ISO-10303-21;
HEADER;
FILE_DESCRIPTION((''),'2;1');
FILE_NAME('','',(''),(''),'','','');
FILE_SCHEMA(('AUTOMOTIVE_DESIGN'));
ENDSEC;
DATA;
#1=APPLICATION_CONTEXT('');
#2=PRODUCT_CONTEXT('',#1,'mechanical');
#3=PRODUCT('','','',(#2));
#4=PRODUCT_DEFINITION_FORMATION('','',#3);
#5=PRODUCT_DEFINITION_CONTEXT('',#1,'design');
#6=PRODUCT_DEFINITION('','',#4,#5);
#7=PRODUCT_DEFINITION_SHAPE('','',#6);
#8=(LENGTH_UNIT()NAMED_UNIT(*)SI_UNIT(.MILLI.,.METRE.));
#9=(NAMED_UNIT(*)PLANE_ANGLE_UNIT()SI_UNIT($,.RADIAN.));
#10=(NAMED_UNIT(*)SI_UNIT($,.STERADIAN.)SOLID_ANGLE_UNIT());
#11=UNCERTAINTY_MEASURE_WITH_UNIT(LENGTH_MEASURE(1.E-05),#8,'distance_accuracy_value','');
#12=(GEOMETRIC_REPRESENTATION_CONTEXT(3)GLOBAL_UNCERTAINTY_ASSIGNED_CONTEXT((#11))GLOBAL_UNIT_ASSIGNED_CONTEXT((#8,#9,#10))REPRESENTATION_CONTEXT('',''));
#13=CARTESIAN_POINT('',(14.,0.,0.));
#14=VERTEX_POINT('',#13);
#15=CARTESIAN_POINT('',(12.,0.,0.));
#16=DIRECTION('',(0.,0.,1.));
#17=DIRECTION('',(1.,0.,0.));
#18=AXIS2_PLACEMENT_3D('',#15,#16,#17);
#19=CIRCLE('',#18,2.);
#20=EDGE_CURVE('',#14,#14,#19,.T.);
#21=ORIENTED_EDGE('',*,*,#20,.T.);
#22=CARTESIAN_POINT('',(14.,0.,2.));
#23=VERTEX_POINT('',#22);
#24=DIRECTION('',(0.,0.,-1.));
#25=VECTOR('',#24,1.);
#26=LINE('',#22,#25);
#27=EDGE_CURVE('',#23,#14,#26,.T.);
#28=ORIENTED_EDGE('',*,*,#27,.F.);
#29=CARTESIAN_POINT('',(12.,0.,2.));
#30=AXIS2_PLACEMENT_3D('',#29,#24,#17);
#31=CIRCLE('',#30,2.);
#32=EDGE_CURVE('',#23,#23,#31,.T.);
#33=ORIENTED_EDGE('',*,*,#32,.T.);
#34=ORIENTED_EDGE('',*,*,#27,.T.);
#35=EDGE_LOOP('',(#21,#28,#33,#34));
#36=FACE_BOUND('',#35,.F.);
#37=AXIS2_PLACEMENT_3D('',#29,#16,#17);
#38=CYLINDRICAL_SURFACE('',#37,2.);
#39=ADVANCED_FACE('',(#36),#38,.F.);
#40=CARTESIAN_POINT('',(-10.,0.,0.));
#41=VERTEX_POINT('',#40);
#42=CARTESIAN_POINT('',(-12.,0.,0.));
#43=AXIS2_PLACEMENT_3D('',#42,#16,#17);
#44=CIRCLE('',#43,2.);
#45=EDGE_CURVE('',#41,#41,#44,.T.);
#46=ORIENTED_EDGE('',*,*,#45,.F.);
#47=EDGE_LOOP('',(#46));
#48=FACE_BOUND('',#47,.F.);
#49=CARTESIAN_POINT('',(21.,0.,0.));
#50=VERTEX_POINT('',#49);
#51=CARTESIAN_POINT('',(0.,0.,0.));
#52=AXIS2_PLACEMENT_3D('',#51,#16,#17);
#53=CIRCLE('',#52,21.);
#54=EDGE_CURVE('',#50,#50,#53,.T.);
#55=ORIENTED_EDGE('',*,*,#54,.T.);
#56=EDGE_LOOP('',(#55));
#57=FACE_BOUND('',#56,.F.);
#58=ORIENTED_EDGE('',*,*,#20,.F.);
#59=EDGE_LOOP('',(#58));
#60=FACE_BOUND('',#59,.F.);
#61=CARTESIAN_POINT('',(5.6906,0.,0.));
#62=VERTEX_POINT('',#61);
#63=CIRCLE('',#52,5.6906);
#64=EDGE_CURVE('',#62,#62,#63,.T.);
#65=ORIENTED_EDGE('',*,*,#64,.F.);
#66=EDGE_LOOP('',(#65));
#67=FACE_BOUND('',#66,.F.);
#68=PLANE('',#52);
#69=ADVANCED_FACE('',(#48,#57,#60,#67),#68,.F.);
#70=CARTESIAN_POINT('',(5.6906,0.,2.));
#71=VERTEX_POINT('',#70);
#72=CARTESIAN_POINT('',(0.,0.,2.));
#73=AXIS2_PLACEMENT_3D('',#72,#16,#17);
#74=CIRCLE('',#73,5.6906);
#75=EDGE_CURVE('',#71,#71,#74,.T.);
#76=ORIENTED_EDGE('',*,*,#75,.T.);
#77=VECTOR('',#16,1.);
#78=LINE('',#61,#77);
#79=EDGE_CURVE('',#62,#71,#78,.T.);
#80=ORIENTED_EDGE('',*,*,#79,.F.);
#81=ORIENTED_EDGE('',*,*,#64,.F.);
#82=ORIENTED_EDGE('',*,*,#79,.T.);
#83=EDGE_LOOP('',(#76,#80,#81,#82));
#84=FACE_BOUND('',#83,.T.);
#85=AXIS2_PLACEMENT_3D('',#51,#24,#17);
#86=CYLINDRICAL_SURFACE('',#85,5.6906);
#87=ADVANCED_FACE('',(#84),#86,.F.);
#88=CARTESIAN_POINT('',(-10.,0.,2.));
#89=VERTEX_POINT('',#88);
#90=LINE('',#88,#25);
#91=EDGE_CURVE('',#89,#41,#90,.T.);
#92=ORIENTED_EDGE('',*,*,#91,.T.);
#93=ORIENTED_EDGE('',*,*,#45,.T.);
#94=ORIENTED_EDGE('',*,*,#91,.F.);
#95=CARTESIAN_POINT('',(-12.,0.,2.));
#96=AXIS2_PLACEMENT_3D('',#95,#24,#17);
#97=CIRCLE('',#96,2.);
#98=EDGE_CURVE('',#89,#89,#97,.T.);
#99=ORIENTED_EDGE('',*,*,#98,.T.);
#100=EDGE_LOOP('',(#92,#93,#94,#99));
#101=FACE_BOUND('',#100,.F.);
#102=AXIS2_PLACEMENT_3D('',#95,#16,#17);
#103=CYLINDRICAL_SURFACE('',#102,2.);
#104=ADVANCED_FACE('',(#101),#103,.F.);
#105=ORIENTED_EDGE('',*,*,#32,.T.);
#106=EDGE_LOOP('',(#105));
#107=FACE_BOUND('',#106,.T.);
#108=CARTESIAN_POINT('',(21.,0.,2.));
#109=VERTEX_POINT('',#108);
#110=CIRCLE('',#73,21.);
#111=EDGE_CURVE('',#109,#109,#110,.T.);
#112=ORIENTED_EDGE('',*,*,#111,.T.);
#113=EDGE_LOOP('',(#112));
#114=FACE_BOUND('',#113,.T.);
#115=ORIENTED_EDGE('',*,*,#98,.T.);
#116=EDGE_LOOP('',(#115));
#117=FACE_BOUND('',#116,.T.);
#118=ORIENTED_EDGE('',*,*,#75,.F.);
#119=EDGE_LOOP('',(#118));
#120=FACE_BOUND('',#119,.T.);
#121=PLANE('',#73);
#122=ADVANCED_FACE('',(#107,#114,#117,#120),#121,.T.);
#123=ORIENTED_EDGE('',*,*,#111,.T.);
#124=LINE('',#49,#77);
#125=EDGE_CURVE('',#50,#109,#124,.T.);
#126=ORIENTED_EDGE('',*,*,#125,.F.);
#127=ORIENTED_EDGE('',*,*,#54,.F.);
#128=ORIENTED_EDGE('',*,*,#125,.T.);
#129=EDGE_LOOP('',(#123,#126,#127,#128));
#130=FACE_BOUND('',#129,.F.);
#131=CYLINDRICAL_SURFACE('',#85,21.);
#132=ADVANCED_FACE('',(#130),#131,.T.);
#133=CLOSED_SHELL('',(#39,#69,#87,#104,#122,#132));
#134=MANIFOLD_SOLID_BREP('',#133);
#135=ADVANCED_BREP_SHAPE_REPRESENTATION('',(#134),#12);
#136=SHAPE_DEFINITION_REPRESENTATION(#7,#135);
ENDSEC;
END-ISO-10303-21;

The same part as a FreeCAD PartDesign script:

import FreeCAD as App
import Part
import Sketcher

doc = App.newDocument("Part")
body = doc.addObject("PartDesign::Body", "Body")

# Sketch on XY plane
sketch1 = body.newObject("Sketcher::SketchObject", "Sketch")
sketch1.AttachmentSupport = (doc.getObject("XY_Plane"), [""])
sketch1.MapMode = "FlatFace"
sketch1.addGeometry([
    Part.Circle(App.Vector(0, 0, 0), App.Vector(0, 0, 1), 21),
    Part.Circle(App.Vector(0, 0, 0), App.Vector(0, 0, 1), 5.6906),
], False)
sketch1.addConstraint([
    Sketcher.Constraint("Coincident", 0, 3, -1, 1),
    Sketcher.Constraint("Coincident", 1, 3, -1, 1),
    Sketcher.Constraint("Diameter", 0, 42.0),
    Sketcher.Constraint("Diameter", 1, 11.3812),
])
pad1 = body.newObject("PartDesign::Pad", "Pad")
pad1.Profile = sketch1
pad1.Length = 2

# Sketch on XY plane
sketch2 = body.newObject("Sketcher::SketchObject", "Sketch001")
sketch2.AttachmentSupport = (doc.getObject("XY_Plane"), [""])
sketch2.MapMode = "FlatFace"
sketch2.AttachmentOffset = App.Placement(App.Vector(0, 0, 2), App.Rotation())
sketch2.addGeometry([
    Part.Circle(App.Vector(12, 0, 0), App.Vector(0, 0, 1), 2),
    Part.Circle(App.Vector(-12, 0, 0), App.Vector(0, 0, 1), 2),
], False)
sketch2.addConstraint([
    Sketcher.Constraint("Equal", 0, 1),
    Sketcher.Constraint("Symmetric", 0, 3, 1, 3, -1, 1),
    Sketcher.Constraint("PointOnObject", 0, 3, -1),
    Sketcher.Constraint("Diameter", 0, 4.0),
    Sketcher.Constraint("DistanceX", 1, 3, 0, 3, 24.0),
])
pocket1 = body.newObject("PartDesign::Pocket", "Pocket")
pocket1.Profile = sketch2
pocket1.Type = "ThroughAll"

doc.recompute()
